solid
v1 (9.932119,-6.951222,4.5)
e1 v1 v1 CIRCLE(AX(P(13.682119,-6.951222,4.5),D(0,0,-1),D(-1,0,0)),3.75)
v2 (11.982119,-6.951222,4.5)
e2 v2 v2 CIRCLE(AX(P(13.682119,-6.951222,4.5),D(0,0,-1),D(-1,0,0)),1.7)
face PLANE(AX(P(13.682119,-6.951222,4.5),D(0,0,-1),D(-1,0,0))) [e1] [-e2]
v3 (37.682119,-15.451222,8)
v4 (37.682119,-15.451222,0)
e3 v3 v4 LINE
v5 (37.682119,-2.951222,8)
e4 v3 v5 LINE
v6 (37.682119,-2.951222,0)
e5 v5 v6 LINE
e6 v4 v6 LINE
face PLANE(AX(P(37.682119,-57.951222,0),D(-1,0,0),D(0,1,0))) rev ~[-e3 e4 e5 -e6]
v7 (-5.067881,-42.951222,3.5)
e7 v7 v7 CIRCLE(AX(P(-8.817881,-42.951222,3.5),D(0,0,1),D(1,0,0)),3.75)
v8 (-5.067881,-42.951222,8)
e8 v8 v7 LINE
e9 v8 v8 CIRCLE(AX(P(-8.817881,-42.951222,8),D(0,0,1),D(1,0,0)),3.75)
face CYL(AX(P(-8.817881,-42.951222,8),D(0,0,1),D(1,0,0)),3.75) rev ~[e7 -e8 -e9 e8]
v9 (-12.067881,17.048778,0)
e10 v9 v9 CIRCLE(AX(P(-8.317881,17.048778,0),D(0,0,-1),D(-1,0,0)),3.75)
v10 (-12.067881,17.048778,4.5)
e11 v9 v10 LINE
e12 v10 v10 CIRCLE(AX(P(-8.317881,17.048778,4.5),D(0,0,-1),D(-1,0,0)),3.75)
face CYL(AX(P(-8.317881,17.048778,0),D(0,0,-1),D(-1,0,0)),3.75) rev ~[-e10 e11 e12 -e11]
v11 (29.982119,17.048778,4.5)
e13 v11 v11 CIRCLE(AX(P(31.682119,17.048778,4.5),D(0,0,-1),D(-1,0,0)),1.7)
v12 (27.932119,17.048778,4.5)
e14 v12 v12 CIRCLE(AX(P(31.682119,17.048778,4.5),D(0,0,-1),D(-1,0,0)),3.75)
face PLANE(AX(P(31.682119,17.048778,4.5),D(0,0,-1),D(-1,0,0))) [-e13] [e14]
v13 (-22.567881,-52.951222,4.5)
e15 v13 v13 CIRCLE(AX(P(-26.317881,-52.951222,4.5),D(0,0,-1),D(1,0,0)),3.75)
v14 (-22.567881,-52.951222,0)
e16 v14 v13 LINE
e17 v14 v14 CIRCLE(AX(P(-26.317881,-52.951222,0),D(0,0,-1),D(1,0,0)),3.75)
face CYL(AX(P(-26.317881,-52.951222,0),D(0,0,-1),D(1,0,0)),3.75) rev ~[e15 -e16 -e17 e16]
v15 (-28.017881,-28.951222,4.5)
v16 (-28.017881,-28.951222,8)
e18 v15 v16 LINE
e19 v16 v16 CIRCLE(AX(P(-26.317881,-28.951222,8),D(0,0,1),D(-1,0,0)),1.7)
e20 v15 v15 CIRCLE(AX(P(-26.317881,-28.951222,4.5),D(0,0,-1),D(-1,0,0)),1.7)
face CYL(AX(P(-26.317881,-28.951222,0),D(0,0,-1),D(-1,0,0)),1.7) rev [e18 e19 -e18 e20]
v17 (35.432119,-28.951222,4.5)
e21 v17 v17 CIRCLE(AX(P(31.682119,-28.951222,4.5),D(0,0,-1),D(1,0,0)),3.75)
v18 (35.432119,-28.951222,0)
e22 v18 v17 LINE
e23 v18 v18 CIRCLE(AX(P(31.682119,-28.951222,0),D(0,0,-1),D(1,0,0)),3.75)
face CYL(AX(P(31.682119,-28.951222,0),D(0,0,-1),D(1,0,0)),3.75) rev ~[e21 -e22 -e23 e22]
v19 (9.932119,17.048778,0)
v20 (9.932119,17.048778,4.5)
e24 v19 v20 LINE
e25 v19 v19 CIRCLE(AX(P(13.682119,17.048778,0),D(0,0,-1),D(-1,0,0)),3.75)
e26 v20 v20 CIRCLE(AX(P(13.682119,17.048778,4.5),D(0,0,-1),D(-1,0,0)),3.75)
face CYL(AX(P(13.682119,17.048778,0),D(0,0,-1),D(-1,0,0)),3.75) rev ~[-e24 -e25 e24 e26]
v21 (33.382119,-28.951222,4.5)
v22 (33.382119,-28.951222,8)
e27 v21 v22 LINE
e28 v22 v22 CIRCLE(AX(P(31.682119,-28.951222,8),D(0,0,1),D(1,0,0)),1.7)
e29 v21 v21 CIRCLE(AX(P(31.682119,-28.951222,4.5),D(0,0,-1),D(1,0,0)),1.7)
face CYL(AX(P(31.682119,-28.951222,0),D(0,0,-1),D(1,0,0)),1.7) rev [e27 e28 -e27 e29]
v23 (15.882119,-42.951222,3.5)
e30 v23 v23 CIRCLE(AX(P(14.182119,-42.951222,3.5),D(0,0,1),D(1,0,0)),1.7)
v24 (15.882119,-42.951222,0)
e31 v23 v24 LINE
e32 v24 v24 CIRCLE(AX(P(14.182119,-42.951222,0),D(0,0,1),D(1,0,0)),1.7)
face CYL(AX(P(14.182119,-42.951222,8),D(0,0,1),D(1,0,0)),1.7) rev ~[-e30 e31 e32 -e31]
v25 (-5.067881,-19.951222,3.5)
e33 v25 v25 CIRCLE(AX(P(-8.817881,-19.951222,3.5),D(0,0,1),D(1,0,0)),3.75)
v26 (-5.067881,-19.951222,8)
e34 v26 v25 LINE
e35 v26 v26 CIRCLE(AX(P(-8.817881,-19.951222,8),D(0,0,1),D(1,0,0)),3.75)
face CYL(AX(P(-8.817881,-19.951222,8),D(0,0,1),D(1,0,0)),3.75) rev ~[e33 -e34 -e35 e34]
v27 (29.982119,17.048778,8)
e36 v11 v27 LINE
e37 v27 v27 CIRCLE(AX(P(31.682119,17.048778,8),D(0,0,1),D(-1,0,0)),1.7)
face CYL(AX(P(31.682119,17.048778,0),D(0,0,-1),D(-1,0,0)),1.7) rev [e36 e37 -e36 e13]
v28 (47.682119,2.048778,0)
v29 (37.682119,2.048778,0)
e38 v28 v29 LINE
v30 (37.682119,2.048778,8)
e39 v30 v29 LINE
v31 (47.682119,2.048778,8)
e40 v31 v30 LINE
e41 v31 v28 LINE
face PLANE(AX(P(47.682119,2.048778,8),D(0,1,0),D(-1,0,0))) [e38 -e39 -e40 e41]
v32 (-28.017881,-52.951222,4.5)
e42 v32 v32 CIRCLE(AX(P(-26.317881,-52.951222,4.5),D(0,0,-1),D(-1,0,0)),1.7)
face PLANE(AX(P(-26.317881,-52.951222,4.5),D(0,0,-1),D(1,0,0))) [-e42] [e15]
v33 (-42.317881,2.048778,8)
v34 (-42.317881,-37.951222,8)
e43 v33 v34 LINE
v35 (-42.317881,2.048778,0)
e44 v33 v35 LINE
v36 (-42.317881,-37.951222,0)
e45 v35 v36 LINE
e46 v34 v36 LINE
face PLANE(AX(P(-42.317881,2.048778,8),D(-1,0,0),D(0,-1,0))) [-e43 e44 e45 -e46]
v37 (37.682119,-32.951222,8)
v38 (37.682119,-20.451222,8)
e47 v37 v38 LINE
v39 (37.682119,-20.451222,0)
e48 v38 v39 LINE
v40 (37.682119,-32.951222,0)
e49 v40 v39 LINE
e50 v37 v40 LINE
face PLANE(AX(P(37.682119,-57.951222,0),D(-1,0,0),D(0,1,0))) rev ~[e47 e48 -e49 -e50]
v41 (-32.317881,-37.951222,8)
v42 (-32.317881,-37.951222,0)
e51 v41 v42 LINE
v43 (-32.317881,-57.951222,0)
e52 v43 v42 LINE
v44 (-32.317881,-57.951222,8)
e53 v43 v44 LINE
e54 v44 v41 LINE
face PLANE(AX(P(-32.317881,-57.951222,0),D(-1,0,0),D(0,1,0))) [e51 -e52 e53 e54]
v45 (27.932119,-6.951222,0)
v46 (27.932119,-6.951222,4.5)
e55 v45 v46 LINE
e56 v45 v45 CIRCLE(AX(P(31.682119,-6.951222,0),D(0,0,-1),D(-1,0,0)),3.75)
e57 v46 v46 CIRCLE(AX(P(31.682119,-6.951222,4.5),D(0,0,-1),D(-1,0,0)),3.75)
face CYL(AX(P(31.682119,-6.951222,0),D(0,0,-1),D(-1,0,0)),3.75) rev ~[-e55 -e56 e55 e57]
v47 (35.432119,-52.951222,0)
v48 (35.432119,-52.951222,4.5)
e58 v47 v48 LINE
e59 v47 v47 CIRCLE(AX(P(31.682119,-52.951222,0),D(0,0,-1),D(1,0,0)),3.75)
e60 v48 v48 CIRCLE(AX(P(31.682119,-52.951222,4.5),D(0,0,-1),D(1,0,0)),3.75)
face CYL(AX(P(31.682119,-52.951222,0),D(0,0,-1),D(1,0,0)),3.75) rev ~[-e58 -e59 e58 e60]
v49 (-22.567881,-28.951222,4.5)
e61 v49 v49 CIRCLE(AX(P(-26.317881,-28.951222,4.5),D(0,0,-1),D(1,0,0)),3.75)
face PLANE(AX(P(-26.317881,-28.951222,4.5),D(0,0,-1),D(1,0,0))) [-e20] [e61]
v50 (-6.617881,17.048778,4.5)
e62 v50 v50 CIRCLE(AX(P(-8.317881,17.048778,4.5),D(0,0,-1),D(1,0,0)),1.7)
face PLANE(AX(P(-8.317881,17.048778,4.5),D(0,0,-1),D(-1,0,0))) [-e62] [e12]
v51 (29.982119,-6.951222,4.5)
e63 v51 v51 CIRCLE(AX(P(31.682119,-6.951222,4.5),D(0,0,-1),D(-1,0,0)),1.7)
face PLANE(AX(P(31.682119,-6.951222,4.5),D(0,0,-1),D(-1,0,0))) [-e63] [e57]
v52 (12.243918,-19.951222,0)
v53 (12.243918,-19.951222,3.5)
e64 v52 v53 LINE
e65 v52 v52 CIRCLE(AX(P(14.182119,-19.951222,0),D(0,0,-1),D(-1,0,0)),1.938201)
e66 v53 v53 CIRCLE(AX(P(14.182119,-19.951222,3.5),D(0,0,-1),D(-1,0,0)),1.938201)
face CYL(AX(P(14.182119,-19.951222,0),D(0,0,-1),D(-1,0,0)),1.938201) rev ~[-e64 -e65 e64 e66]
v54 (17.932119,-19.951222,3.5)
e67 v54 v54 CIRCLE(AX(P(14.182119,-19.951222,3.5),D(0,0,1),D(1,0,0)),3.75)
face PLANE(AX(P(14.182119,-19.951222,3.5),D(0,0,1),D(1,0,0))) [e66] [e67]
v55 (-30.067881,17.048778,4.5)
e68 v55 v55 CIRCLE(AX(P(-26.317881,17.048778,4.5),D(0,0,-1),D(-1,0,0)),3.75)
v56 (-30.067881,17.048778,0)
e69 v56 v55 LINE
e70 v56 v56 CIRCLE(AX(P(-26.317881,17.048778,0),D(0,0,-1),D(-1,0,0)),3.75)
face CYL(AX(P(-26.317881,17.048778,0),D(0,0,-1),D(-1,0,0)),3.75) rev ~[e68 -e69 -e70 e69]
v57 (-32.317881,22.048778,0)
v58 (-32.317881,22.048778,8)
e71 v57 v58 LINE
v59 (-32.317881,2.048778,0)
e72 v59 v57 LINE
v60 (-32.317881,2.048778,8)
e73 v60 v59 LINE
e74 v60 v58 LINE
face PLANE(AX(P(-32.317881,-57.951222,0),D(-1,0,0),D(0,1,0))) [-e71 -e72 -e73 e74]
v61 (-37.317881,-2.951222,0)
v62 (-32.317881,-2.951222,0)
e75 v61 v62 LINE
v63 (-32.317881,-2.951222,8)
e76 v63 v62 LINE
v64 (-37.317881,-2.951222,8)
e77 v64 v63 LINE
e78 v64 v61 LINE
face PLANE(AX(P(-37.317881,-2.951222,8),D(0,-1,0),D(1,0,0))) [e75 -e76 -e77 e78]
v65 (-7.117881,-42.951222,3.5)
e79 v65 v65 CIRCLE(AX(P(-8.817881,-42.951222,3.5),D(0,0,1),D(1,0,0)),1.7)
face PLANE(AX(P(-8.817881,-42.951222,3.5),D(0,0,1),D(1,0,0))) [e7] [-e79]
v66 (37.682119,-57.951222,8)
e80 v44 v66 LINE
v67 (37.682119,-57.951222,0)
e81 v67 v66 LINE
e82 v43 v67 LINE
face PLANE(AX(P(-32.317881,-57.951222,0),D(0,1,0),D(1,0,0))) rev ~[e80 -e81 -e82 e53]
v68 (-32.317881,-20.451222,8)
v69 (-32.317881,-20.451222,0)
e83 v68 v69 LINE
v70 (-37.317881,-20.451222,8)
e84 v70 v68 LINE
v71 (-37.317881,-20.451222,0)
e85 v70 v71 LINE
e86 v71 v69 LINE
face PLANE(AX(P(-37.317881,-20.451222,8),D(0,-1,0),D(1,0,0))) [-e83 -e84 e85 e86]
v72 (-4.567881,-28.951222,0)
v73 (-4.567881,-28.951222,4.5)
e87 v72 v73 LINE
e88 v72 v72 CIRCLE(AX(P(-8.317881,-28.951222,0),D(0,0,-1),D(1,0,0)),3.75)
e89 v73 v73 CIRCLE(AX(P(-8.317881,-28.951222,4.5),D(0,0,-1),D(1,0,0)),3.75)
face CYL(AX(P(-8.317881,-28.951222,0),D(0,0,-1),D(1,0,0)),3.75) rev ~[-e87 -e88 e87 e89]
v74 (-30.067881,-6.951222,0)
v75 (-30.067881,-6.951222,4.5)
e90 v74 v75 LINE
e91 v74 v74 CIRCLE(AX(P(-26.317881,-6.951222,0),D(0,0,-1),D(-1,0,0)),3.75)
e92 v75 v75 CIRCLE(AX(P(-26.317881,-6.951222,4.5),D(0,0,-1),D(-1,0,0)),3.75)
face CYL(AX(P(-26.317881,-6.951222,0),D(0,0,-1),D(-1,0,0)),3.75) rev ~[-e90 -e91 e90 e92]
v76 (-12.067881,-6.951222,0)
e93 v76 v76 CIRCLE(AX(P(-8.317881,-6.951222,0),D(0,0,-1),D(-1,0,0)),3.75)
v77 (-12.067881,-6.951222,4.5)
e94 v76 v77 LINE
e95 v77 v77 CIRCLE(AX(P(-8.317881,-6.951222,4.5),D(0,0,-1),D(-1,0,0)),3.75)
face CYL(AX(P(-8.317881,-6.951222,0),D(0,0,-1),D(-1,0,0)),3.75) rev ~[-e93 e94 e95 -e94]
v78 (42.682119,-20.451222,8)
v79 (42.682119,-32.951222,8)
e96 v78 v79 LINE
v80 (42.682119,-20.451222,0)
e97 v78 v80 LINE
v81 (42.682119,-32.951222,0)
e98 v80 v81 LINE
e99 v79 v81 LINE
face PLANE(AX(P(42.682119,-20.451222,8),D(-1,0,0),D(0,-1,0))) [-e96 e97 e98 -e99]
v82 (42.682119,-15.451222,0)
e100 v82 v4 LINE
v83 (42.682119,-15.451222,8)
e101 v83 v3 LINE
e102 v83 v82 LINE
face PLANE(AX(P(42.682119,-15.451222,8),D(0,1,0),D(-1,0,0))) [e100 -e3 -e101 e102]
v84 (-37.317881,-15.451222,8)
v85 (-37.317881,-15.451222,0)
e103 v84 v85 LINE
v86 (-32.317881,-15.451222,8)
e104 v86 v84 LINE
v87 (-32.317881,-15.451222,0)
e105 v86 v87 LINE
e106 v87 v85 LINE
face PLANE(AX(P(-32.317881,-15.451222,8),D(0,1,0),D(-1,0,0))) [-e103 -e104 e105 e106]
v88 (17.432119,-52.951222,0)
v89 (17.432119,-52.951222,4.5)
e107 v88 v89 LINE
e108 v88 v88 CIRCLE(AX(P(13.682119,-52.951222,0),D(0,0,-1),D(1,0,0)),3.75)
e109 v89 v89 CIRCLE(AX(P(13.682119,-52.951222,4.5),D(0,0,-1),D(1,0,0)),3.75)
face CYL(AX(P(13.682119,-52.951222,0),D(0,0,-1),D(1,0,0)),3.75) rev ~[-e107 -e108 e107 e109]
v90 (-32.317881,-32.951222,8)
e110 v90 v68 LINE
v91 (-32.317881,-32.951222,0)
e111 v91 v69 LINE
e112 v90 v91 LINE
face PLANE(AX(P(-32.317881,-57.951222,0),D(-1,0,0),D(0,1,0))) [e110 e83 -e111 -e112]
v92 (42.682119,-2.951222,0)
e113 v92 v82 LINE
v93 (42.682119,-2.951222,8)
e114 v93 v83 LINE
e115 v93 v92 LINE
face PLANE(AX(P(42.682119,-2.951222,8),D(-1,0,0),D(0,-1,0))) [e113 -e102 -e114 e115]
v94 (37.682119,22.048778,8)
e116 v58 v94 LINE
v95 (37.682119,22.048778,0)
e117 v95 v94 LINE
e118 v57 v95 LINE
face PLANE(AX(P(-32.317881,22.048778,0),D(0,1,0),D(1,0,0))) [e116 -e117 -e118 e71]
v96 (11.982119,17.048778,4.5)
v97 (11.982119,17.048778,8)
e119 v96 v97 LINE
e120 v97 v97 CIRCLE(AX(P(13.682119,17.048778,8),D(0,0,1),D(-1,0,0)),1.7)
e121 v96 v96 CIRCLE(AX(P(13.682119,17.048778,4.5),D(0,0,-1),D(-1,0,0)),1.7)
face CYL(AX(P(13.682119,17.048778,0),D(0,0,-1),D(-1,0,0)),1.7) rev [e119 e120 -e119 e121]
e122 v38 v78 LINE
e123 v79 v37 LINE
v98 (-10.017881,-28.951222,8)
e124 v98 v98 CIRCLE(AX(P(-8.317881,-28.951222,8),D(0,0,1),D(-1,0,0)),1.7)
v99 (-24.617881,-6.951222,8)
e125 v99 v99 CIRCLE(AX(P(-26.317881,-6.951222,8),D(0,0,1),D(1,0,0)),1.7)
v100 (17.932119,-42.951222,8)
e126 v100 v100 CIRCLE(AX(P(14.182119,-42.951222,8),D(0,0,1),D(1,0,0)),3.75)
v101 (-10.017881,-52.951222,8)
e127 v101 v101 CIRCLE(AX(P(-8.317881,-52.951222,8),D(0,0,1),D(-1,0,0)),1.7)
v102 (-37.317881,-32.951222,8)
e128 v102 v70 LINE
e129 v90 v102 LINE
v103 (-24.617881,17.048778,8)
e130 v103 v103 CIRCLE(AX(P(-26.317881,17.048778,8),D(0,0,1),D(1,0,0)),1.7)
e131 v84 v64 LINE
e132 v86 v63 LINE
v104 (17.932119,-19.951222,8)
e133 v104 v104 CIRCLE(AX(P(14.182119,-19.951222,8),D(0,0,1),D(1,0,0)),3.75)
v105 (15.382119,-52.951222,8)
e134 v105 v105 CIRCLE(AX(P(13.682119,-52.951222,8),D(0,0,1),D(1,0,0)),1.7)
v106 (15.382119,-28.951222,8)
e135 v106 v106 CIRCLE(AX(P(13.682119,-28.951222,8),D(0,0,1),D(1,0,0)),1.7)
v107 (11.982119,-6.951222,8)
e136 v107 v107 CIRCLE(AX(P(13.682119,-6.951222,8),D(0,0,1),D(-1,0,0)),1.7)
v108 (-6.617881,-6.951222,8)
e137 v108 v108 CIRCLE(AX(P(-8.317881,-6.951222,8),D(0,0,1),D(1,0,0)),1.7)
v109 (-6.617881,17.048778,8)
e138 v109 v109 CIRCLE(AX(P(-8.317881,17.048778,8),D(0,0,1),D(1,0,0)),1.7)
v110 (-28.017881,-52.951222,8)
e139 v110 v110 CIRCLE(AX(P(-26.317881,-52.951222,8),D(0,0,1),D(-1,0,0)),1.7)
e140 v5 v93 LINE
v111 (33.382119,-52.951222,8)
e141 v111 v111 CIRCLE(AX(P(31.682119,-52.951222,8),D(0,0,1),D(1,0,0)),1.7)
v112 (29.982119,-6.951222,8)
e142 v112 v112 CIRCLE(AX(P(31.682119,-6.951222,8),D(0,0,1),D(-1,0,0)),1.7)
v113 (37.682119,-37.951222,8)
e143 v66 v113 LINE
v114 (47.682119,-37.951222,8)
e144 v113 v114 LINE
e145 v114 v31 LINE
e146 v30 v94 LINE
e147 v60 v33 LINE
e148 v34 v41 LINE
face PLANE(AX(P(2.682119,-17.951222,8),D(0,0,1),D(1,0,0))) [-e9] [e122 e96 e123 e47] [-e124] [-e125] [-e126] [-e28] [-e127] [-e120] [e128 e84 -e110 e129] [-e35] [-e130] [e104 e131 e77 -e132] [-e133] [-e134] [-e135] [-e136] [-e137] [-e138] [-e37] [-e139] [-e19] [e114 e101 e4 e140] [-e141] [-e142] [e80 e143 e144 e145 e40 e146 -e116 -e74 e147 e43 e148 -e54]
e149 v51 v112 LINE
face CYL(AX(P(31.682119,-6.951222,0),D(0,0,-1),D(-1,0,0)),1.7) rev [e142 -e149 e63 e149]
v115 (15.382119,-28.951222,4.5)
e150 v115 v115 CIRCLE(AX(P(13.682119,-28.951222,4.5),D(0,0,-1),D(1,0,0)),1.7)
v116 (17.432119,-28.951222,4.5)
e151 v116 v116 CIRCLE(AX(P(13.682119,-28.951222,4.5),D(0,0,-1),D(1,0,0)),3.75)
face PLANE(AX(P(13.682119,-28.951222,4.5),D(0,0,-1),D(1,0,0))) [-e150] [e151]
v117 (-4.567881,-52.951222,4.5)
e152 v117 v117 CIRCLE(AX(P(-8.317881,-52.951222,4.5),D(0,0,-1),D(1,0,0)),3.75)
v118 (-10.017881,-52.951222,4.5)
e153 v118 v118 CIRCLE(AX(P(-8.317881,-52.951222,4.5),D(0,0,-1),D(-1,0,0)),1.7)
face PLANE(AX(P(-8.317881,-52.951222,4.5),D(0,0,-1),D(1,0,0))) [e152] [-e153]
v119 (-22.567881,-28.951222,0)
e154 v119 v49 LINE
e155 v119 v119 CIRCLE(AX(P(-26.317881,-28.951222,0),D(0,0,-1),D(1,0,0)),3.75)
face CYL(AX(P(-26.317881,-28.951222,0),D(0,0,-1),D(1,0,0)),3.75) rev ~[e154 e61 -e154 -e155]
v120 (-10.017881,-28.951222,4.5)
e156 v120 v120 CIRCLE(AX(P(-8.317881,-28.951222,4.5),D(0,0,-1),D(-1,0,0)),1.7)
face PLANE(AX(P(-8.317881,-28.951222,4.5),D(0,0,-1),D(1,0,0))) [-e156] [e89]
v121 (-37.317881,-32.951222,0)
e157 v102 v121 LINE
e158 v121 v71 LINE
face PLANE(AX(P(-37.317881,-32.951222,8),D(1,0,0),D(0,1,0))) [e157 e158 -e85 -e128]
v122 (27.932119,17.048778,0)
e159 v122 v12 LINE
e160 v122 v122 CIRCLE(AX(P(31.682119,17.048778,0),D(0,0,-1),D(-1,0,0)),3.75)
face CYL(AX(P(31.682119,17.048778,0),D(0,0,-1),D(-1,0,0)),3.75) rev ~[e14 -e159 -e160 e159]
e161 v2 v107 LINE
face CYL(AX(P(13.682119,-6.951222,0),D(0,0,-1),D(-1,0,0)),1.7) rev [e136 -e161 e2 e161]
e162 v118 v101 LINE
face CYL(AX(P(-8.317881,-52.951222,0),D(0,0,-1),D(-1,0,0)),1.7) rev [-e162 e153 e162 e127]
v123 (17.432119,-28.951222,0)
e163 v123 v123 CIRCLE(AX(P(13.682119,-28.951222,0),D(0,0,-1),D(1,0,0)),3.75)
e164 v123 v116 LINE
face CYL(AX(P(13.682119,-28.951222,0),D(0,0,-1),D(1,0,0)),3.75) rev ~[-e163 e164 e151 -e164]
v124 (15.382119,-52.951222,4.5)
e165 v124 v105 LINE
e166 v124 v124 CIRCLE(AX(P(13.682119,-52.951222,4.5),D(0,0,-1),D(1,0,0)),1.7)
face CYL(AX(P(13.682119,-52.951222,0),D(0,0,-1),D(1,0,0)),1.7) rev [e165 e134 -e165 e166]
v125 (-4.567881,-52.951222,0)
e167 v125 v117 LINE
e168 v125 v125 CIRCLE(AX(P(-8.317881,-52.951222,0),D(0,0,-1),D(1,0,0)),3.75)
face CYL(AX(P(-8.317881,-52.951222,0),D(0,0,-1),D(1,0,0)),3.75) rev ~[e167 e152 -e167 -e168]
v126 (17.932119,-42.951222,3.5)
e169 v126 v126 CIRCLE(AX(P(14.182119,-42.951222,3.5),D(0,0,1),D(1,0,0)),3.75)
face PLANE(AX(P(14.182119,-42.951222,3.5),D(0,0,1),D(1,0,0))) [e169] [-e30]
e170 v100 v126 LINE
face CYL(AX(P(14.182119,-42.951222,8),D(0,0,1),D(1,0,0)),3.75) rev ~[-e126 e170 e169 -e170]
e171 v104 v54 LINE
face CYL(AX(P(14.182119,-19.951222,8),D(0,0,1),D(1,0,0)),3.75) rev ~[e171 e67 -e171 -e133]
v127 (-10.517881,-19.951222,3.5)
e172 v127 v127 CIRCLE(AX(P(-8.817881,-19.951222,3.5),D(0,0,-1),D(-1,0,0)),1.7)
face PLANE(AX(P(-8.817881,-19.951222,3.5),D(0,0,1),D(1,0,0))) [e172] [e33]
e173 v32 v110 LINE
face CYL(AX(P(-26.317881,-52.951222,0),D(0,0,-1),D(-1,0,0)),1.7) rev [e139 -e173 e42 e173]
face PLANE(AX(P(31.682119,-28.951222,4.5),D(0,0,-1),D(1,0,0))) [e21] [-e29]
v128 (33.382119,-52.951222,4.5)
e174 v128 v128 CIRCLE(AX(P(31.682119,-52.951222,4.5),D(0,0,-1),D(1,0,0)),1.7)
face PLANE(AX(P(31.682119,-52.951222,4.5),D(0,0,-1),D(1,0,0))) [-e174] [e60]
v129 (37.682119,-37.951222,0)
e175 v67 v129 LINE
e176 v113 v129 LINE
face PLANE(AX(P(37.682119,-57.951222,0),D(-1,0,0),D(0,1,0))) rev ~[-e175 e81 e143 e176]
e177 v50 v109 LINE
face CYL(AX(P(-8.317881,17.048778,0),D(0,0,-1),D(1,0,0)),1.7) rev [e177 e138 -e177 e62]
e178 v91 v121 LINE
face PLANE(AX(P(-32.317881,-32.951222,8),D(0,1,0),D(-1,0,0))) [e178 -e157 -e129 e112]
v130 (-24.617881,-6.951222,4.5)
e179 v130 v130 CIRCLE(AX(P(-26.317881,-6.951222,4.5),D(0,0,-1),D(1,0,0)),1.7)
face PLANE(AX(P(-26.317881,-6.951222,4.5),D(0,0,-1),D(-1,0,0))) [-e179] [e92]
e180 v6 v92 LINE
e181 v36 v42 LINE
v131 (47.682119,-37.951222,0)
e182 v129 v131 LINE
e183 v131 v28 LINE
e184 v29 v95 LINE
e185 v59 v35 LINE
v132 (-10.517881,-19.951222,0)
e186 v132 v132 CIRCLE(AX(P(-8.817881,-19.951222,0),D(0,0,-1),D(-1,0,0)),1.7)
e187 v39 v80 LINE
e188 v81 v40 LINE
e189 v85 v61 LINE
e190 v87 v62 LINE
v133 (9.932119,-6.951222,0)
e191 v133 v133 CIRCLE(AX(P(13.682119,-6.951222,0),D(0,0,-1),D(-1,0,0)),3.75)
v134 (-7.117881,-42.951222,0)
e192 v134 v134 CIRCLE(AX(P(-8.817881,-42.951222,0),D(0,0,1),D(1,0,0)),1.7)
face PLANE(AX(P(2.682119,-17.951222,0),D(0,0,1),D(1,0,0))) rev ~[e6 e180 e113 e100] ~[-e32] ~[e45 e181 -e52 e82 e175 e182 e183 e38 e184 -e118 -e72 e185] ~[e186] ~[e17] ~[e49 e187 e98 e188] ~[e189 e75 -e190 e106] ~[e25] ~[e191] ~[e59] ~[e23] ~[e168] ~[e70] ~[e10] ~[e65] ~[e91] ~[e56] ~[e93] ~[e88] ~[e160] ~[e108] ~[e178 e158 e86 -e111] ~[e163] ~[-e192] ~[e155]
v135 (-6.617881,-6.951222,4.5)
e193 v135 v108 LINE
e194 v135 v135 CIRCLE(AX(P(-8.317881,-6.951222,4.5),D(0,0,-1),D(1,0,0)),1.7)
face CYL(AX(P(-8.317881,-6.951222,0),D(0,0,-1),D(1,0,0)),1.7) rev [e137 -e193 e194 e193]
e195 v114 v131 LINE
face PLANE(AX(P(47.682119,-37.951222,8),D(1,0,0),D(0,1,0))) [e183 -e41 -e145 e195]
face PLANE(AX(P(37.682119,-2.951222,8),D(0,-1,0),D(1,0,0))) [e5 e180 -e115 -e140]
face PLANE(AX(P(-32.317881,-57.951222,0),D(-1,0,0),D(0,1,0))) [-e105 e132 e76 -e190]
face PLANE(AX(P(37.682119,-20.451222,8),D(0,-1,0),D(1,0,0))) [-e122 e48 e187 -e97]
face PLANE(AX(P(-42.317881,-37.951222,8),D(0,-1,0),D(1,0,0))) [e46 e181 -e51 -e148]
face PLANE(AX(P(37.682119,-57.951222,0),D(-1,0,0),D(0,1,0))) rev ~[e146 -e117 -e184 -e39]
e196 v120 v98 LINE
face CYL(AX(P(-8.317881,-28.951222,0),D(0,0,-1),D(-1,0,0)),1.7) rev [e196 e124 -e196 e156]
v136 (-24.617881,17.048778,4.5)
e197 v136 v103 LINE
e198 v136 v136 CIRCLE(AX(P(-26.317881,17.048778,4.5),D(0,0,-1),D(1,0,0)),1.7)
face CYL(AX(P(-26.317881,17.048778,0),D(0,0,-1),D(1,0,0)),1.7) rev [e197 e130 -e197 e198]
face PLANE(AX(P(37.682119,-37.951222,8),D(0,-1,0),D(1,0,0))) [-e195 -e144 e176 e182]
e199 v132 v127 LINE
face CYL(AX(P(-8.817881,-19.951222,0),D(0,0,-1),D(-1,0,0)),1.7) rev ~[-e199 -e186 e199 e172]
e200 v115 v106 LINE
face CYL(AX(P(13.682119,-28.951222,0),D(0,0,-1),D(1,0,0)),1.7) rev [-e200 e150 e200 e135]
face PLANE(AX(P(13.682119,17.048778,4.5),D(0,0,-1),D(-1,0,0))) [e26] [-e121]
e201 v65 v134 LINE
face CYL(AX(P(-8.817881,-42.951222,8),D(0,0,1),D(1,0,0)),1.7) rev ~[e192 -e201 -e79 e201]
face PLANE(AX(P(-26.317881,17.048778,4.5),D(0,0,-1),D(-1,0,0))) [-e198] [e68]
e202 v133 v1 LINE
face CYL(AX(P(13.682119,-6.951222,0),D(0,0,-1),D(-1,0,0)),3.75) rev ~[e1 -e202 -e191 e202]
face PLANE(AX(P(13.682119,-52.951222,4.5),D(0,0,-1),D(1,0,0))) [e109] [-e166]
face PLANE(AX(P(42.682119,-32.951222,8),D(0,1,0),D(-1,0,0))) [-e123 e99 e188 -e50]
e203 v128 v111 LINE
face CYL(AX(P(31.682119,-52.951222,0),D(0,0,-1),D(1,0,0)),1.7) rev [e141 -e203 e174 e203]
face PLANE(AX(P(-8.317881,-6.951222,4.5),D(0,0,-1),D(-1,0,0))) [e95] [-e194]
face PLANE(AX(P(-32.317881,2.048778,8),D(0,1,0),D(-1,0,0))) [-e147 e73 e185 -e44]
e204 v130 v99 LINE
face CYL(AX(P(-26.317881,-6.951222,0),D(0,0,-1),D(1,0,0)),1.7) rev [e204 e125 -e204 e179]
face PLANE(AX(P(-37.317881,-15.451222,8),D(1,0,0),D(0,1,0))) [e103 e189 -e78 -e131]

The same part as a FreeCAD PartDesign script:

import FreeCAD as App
import Part
import Sketcher
from FreeCAD import Vector
Q = App.Units.Quantity

doc = App.newDocument("Part")
body = doc.addObject("PartDesign::Body", "Body")

sketch1 = body.newObject("Sketcher::SketchObject", "Sketch")
sketch1.AttachmentSupport = (doc.getObject("XY_Plane"), [""])
sketch1.MapMode = "FlatFace"
sketch1.addGeometry(Part.LineSegment(Vector(-32.3, 22, 0), Vector(-32.3, -58, 0)), False)
sketch1.addGeometry(Part.LineSegment(Vector(-32.3, -58, 0), Vector(37.7, -58, 0)), False)
sketch1.addGeometry(Part.LineSegment(Vector(37.7, -58, 0), Vector(37.7, 22, 0)), False)
sketch1.addGeometry(Part.LineSegment(Vector(37.7, 22, 0), Vector(-32.3, 22, 0)), False)
sketch1.addGeometry(Part.Circle(Vector(-26.3, -53, 0), Vector(0, 0, 1), 1.7), False)
sketch1.addGeometry(Part.Circle(Vector(-8.3, -53, 0), Vector(0, 0, 1), 1.7), False)
sketch1.addGeometry(Part.Circle(Vector(-26.3, -29, 0), Vector(0, 0, 1), 1.7), False)
sketch1.addGeometry(Part.Circle(Vector(-8.3, -29, 0), Vector(0, 0, 1), 1.7), False)
sketch1.addGeometry(Part.Circle(Vector(13.7, -53, 0), Vector(0, 0, 1), 1.7), False)
sketch1.addGeometry(Part.Circle(Vector(31.7, -53, 0), Vector(0, 0, 1), 1.7), False)
sketch1.addGeometry(Part.Circle(Vector(13.7, -29, 0), Vector(0, 0, 1), 1.7), False)
sketch1.addGeometry(Part.Circle(Vector(31.7, -29, 0), Vector(0, 0, 1), 1.7), False)
sketch1.addGeometry(Part.Circle(Vector(-26.3, -7, 0), Vector(0, 0, 1), 1.7), False)
sketch1.addGeometry(Part.Circle(Vector(-8.3, -7, 0), Vector(0, 0, 1), 1.7), False)
sketch1.addGeometry(Part.Circle(Vector(-26.3, 17, 0), Vector(0, 0, 1), 1.7), False)
sketch1.addGeometry(Part.Circle(Vector(-8.3, 17, 0), Vector(0, 0, 1), 1.7), False)
sketch1.addGeometry(Part.Circle(Vector(13.7, -7, 0), Vector(0, 0, 1), 1.7), False)
sketch1.addGeometry(Part.Circle(Vector(31.7, -7, 0), Vector(0, 0, 1), 1.7), False)
sketch1.addGeometry(Part.Circle(Vector(13.7, 17, 0), Vector(0, 0, 1), 1.7), False)
sketch1.addGeometry(Part.Circle(Vector(31.7, 17, 0), Vector(0, 0, 1), 1.7), False)
sketch1.addConstraint(Sketcher.Constraint("Coincident", 0, 2, 1, 1))
sketch1.addConstraint(Sketcher.Constraint("Coincident", 1, 2, 2, 1))
sketch1.addConstraint(Sketcher.Constraint("Coincident", 2, 2, 3, 1))
sketch1.addConstraint(Sketcher.Constraint("Coincident", 3, 2, 0, 1))
sketch1.addConstraint(Sketcher.Constraint("Vertical", 0))
sketch1.addConstraint(Sketcher.Constraint("Horizontal", 1))
sketch1.addConstraint(Sketcher.Constraint("Vertical", 2))
sketch1.addConstraint(Sketcher.Constraint("Horizontal", 3))
sketch1.addConstraint(Sketcher.Constraint("Equal", 4, 5))
sketch1.addConstraint(Sketcher.Constraint("Equal", 5, 6))
sketch1.addConstraint(Sketcher.Constraint("Equal", 6, 7))
sketch1.addConstraint(Sketcher.Constraint("Equal", 7, 8))
sketch1.addConstraint(Sketcher.Constraint("Equal", 8, 9))
sketch1.addConstraint(Sketcher.Constraint("Equal", 9, 10))
sketch1.addConstraint(Sketcher.Constraint("Equal", 10, 11))
sketch1.addConstraint(Sketcher.Constraint("Equal", 11, 12))
sketch1.addConstraint(Sketcher.Constraint("Equal", 12, 13))
sketch1.addConstraint(Sketcher.Constraint("Equal", 13, 14))
sketch1.addConstraint(Sketcher.Constraint("Equal", 14, 15))
sketch1.addConstraint(Sketcher.Constraint("Equal", 15, 16))
sketch1.addConstraint(Sketcher.Constraint("Equal", 16, 17))
sketch1.addConstraint(Sketcher.Constraint("Equal", 17, 18))
sketch1.addConstraint(Sketcher.Constraint("Equal", 18, 19))
sketch1.addConstraint(Sketcher.Constraint("Horizontal", 4, 3, 5, 3))
sketch1.addConstraint(Sketcher.Constraint("Horizontal", 6, 3, 7, 3))
sketch1.addConstraint(Sketcher.Constraint("Horizontal", 5, 3, 8, 3))
sketch1.addConstraint(Sketcher.Constraint("Horizontal", 8, 3, 9, 3))
sketch1.addConstraint(Sketcher.Constraint("Horizontal", 7, 3, 10, 3))
sketch1.addConstraint(Sketcher.Constraint("Horizontal", 10, 3, 11, 3))
sketch1.addConstraint(Sketcher.Constraint("Horizontal", 12, 3, 13, 3))
sketch1.addConstraint(Sketcher.Constraint("Horizontal", 14, 3, 15, 3))
sketch1.addConstraint(Sketcher.Constraint("Horizontal", 13, 3, 16, 3))
sketch1.addConstraint(Sketcher.Constraint("Horizontal", 16, 3, 17, 3))
sketch1.addConstraint(Sketcher.Constraint("Horizontal", 15, 3, 18, 3))
sketch1.addConstraint(Sketcher.Constraint("Horizontal", 18, 3, 19, 3))
sketch1.addConstraint(Sketcher.Constraint("Vertical", 4, 3, 6, 3))
sketch1.addConstraint(Sketcher.Constraint("Vertical", 5, 3, 7, 3))
sketch1.addConstraint(Sketcher.Constraint("Vertical", 8, 3, 10, 3))
sketch1.addConstraint(Sketcher.Constraint("Vertical", 9, 3, 11, 3))
sketch1.addConstraint(Sketcher.Constraint("Vertical", 6, 3, 12, 3))
sketch1.addConstraint(Sketcher.Constraint("Vertical", 7, 3, 13, 3))
sketch1.addConstraint(Sketcher.Constraint("Vertical", 12, 3, 14, 3))
sketch1.addConstraint(Sketcher.Constraint("Vertical", 13, 3, 15, 3))
sketch1.addConstraint(Sketcher.Constraint("Vertical", 10, 3, 16, 3))
sketch1.addConstraint(Sketcher.Constraint("Vertical", 11, 3, 17, 3))
sketch1.addConstraint(Sketcher.Constraint("Vertical", 16, 3, 18, 3))
sketch1.addConstraint(Sketcher.Constraint("Vertical", 17, 3, 19, 3))
sketch1.addConstraint(Sketcher.Constraint("Diameter", 4, Q("3.4 mm")))
sketch1.addConstraint(Sketcher.Constraint("DistanceX", 1, 1, 1, 2, Q("70 mm")))
sketch1.addConstraint(Sketcher.Constraint("DistanceY", 0, 2, 0, 1, Q("80 mm")))
sketch1.addConstraint(Sketcher.Constraint("DistanceX", 4, 3, 5, 3, Q("18 mm")))
sketch1.addConstraint(Sketcher.Constraint("DistanceY", 4, 3, 6, 3, Q("24 mm")))
sketch1.addConstraint(Sketcher.Constraint("DistanceX", 5, 3, 8, 3, Q("22 mm")))
sketch1.addConstraint(Sketcher.Constraint("DistanceX", 8, 3, 9, 3, Q("18 mm")))
sketch1.addConstraint(Sketcher.Constraint("DistanceY", 6, 3, 12, 3, Q("22 mm")))
sketch1.addConstraint(Sketcher.Constraint("DistanceY", 12, 3, 14, 3, Q("24 mm")))
sketch1.addConstraint(Sketcher.Constraint("DistanceX", 0, 2, 4, 3, Q("6 mm")))
sketch1.addConstraint(Sketcher.Constraint("DistanceY", 0, 2, 4, 3, Q("5 mm")))
sketch1.addConstraint(Sketcher.Constraint("DistanceX", 4, 3, -1, 1, Q("26.317881 mm")))
sketch1.addConstraint(Sketcher.Constraint("DistanceY", 4, 3, -1, 1, Q("52.951222 mm")))
pad1 = body.newObject("PartDesign::Pad", "Pad")
pad1.Profile = sketch1
pad1.Length = 8

sketch2 = body.newObject("Sketcher::SketchObject", "Sketch001")
sketch2.AttachmentSupport = (doc.getObject("XY_Plane"), [""])
sketch2.MapMode = "FlatFace"
sketch2.addGeometry(Part.Circle(Vector(31.7, 17, 0), Vector(0, 0, 1), 3.8), False)
sketch2.addGeometry(Part.Circle(Vector(13.7, 17, 0), Vector(0, 0, 1), 3.8), False)
sketch2.addGeometry(Part.Circle(Vector(-8.3, 17, 0), Vector(0, 0, 1), 3.8), False)
sketch2.addGeometry(Part.Circle(Vector(-26.3, 17, 0), Vector(0, 0, 1), 3.8), False)
sketch2.addGeometry(Part.Circle(Vector(31.7, -7, 0), Vector(0, 0, 1), 3.8), False)
sketch2.addGeometry(Part.Circle(Vector(13.7, -7, 0), Vector(0, 0, 1), 3.8), False)
sketch2.addGeometry(Part.Circle(Vector(-8.3, -7, 0), Vector(0, 0, 1), 3.8), False)
sketch2.addGeometry(Part.Circle(Vector(-26.3, -7, 0), Vector(0, 0, 1), 3.8), False)
sketch2.addGeometry(Part.Circle(Vector(31.7, -29, 0), Vector(0, 0, 1), 3.8), False)
sketch2.addGeometry(Part.Circle(Vector(13.7, -29, 0), Vector(0, 0, 1), 3.8), False)
sketch2.addGeometry(Part.Circle(Vector(-8.3, -29, 0), Vector(0, 0, 1), 3.8), False)
sketch2.addGeometry(Part.Circle(Vector(-26.3, -29, 0), Vector(0, 0, 1), 3.8), False)
sketch2.addGeometry(Part.Circle(Vector(-26.3, -53, 0), Vector(0, 0, 1), 3.8), False)
sketch2.addGeometry(Part.Circle(Vector(-8.3, -53, 0), Vector(0, 0, 1), 3.8), False)
sketch2.addGeometry(Part.Circle(Vector(13.7, -53, 0), Vector(0, 0, 1), 3.8), False)
sketch2.addGeometry(Part.Circle(Vector(31.7, -53, 0), Vector(0, 0, 1), 3.8), False)
sketch2.addConstraint(Sketcher.Constraint("Equal", 0, 1))
sketch2.addConstraint(Sketcher.Constraint("Equal", 1, 2))
sketch2.addConstraint(Sketcher.Constraint("Equal", 2, 3))
sketch2.addConstraint(Sketcher.Constraint("Equal", 3, 4))
sketch2.addConstraint(Sketcher.Constraint("Equal", 4, 5))
sketch2.addConstraint(Sketcher.Constraint("Equal", 5, 6))
sketch2.addConstraint(Sketcher.Constraint("Equal", 6, 7))
sketch2.addConstraint(Sketcher.Constraint("Equal", 7, 8))
sketch2.addConstraint(Sketcher.Constraint("Equal", 8, 9))
sketch2.addConstraint(Sketcher.Constraint("Equal", 9, 10))
sketch2.addConstraint(Sketcher.Constraint("Equal", 10, 11))
sketch2.addConstraint(Sketcher.Constraint("Equal", 11, 12))
sketch2.addConstraint(Sketcher.Constraint("Equal", 12, 13))
sketch2.addConstraint(Sketcher.Constraint("Equal", 13, 14))
sketch2.addConstraint(Sketcher.Constraint("Equal", 14, 15))
sketch2.addConstraint(Sketcher.Constraint("Horizontal", 0, 3, 1, 3))
sketch2.addConstraint(Sketcher.Constraint("Horizontal", 1, 3, 2, 3))
sketch2.addConstraint(Sketcher.Constraint("Horizontal", 2, 3, 3, 3))
sketch2.addConstraint(Sketcher.Constraint("Horizontal", 4, 3, 5, 3))
sketch2.addConstraint(Sketcher.Constraint("Horizontal", 5, 3, 6, 3))
sketch2.addConstraint(Sketcher.Constraint("Horizontal", 6, 3, 7, 3))
sketch2.addConstraint(Sketcher.Constraint("Horizontal", 8, 3, 9, 3))
sketch2.addConstraint(Sketcher.Constraint("Horizontal", 9, 3, 10, 3))
sketch2.addConstraint(Sketcher.Constraint("Horizontal", 10, 3, 11, 3))
sketch2.addConstraint(Sketcher.Constraint("Horizontal", 12, 3, 13, 3))
sketch2.addConstraint(Sketcher.Constraint("Horizontal", 13, 3, 14, 3))
sketch2.addConstraint(Sketcher.Constraint("Horizontal", 14, 3, 15, 3))
sketch2.addConstraint(Sketcher.Constraint("Vertical", 0, 3, 4, 3))
sketch2.addConstraint(Sketcher.Constraint("Vertical", 1, 3, 5, 3))
sketch2.addConstraint(Sketcher.Constraint("Vertical", 2, 3, 6, 3))
sketch2.addConstraint(Sketcher.Constraint("Vertical", 3, 3, 7, 3))
sketch2.addConstraint(Sketcher.Constraint("Vertical", 4, 3, 8, 3))
sketch2.addConstraint(Sketcher.Constraint("Vertical", 5, 3, 9, 3))
sketch2.addConstraint(Sketcher.Constraint("Vertical", 6, 3, 10, 3))
sketch2.addConstraint(Sketcher.Constraint("Vertical", 7, 3, 11, 3))
sketch2.addConstraint(Sketcher.Constraint("Vertical", 11, 3, 12, 3))
sketch2.addConstraint(Sketcher.Constraint("Vertical", 10, 3, 13, 3))
sketch2.addConstraint(Sketcher.Constraint("Vertical", 9, 3, 14, 3))
sketch2.addConstraint(Sketcher.Constraint("Vertical", 8, 3, 15, 3))
sketch2.addConstraint(Sketcher.Constraint("Diameter", 0, Q("7.5 mm")))
sketch2.addConstraint(Sketcher.Constraint("DistanceX", 1, 3, 0, 3, Q("18 mm")))
sketch2.addConstraint(Sketcher.Constraint("DistanceX", 2, 3, 1, 3, Q("22 mm")))
sketch2.addConstraint(Sketcher.Constraint("DistanceX", 3, 3, 2, 3, Q("18 mm")))
sketch2.addConstraint(Sketcher.Constraint("DistanceY", 4, 3, 0, 3, Q("24 mm")))
sketch2.addConstraint(Sketcher.Constraint("DistanceY", 8, 3, 4, 3, Q("22 mm")))
sketch2.addConstraint(Sketcher.Constraint("DistanceY", 12, 3, 11, 3, Q("24 mm")))
sketch2.addConstraint(Sketcher.Constraint("DistanceX", -1, 1, 0, 3, Q("31.682119 mm")))
sketch2.addConstraint(Sketcher.Constraint("DistanceY", -1, 1, 0, 3, Q("17.048778 mm")))
pocket1 = body.newObject("PartDesign::Pocket", "Pocket")
pocket1.Profile = sketch2
pocket1.Length = 4.5
pocket1.Reversed = True

sketch3 = body.newObject("Sketcher::SketchObject", "Sketch002")
sketch3.AttachmentSupport = (doc.getObject("XY_Plane"), [""])
sketch3.MapMode = "FlatFace"
sketch3.AttachmentOffset = App.Placement(Vector(0, 0, 8), App.Rotation())
sketch3.addGeometry(Part.LineSegment(Vector(48, 2, 0), Vector(38, 2, 0)), False)
sketch3.addGeometry(Part.LineSegment(Vector(38, 2, 0), Vector(38, -3, 0)), False)
sketch3.addGeometry(Part.LineSegment(Vector(38, -3, 0), Vector(43, -3, 0)), False)
sketch3.addGeometry(Part.LineSegment(Vector(43, -3, 0), Vector(43, -15, 0)), False)
sketch3.addGeometry(Part.LineSegment(Vector(43, -15, 0), Vector(38, -15, 0)), False)
sketch3.addGeometry(Part.LineSegment(Vector(38, -15, 0), Vector(38, -20, 0)), False)
sketch3.addGeometry(Part.LineSegment(Vector(38, -20, 0), Vector(43, -20, 0)), False)
sketch3.addGeometry(Part.LineSegment(Vector(43, -20, 0), Vector(43, -33, 0)), False)
sketch3.addGeometry(Part.LineSegment(Vector(43, -33, 0), Vector(38, -33, 0)), False)
sketch3.addGeometry(Part.LineSegment(Vector(38, -33, 0), Vector(38, -38, 0)), False)
sketch3.addGeometry(Part.LineSegment(Vector(38, -38, 0), Vector(48, -38, 0)), False)
sketch3.addGeometry(Part.LineSegment(Vector(48, -38, 0), Vector(48, 2, 0)), False)
sketch3.addGeometry(Part.LineSegment(Vector(-32, -38, 0), Vector(-32, -33, 0)), False)
sketch3.addGeometry(Part.LineSegment(Vector(-32, -33, 0), Vector(-37, -33, 0)), False)
sketch3.addGeometry(Part.LineSegment(Vector(-37, -33, 0), Vector(-37, -20, 0)), False)
sketch3.addGeometry(Part.LineSegment(Vector(-37, -20, 0), Vector(-32, -20, 0)), False)
sketch3.addGeometry(Part.LineSegment(Vector(-32, -20, 0), Vector(-32, -15, 0)), False)
sketch3.addGeometry(Part.LineSegment(Vector(-32, -15, 0), Vector(-37, -15, 0)), False)
sketch3.addGeometry(Part.LineSegment(Vector(-37, -15, 0), Vector(-37, -3, 0)), False)
sketch3.addGeometry(Part.LineSegment(Vector(-37, -3, 0), Vector(-32, -3, 0)), False)
sketch3.addGeometry(Part.LineSegment(Vector(-32, -3, 0), Vector(-32, 2, 0)), False)
sketch3.addGeometry(Part.LineSegment(Vector(-32, 2, 0), Vector(-42, 2, 0)), False)
sketch3.addGeometry(Part.LineSegment(Vector(-42, 2, 0), Vector(-42, -38, 0)), False)
sketch3.addGeometry(Part.LineSegment(Vector(-42, -38, 0), Vector(-32, -38, 0)), False)
sketch3.addConstraint(Sketcher.Constraint("Coincident", 0, 2, 1, 1))
sketch3.addConstraint(Sketcher.Constraint("Coincident", 1, 2, 2, 1))
sketch3.addConstraint(Sketcher.Constraint("Coincident", 2, 2, 3, 1))
sketch3.addConstraint(Sketcher.Constraint("Coincident", 3, 2, 4, 1))
sketch3.addConstraint(Sketcher.Constraint("Coincident", 4, 2, 5, 1))
sketch3.addConstraint(Sketcher.Constraint("Coincident", 5, 2, 6, 1))
sketch3.addConstraint(Sketcher.Constraint("Coincident", 6, 2, 7, 1))
sketch3.addConstraint(Sketcher.Constraint("Coincident", 7, 2, 8, 1))
sketch3.addConstraint(Sketcher.Constraint("Coincident", 8, 2, 9, 1))
sketch3.addConstraint(Sketcher.Constraint("Coincident", 9, 2, 10, 1))
sketch3.addConstraint(Sketcher.Constraint("Coincident", 10, 2, 11, 1))
sketch3.addConstraint(Sketcher.Constraint("Coincident", 11, 2, 0, 1))
sketch3.addConstraint(Sketcher.Constraint("Coincident", 12, 2, 13, 1))
sketch3.addConstraint(Sketcher.Constraint("Coincident", 13, 2, 14, 1))
sketch3.addConstraint(Sketcher.Constraint("Coincident", 14, 2, 15, 1))
sketch3.addConstraint(Sketcher.Constraint("Coincident", 15, 2, 16, 1))
sketch3.addConstraint(Sketcher.Constraint("Coincident", 16, 2, 17, 1))
sketch3.addConstraint(Sketcher.Constraint("Coincident", 17, 2, 18, 1))
sketch3.addConstraint(Sketcher.Constraint("Coincident", 18, 2, 19, 1))
sketch3.addConstraint(Sketcher.Constraint("Coincident", 19, 2, 20, 1))
sketch3.addConstraint(Sketcher.Constraint("Coincident", 20, 2, 21, 1))
sketch3.addConstraint(Sketcher.Constraint("Coincident", 21, 2, 22, 1))
sketch3.addConstraint(Sketcher.Constraint("Coincident", 22, 2, 23, 1))
sketch3.addConstraint(Sketcher.Constraint("Coincident", 23, 2, 12, 1))
sketch3.addConstraint(Sketcher.Constraint("Horizontal", 0))
sketch3.addConstraint(Sketcher.Constraint("Vertical", 1))
sketch3.addConstraint(Sketcher.Constraint("Horizontal", 2))
sketch3.addConstraint(Sketcher.Constraint("Vertical", 3))
sketch3.addConstraint(Sketcher.Constraint("Horizontal", 4))
sketch3.addConstraint(Sketcher.Constraint("Vertical", 5))
sketch3.addConstraint(Sketcher.Constraint("Horizontal", 6))
sketch3.addConstraint(Sketcher.Constraint("Vertical", 7))
sketch3.addConstraint(Sketcher.Constraint("Horizontal", 8))
sketch3.addConstraint(Sketcher.Constraint("Vertical", 9))
sketch3.addConstraint(Sketcher.Constraint("Horizontal", 10))
sketch3.addConstraint(Sketcher.Constraint("Vertical", 11))
sketch3.addConstraint(Sketcher.Constraint("Vertical", 12))
sketch3.addConstraint(Sketcher.Constraint("Horizontal", 13))
sketch3.addConstraint(Sketcher.Constraint("Vertical", 14))
sketch3.addConstraint(Sketcher.Constraint("Horizontal", 15))
sketch3.addConstraint(Sketcher.Constraint("Vertical", 16))
sketch3.addConstraint(Sketcher.Constraint("Horizontal", 17))
sketch3.addConstraint(Sketcher.Constraint("Vertical", 18))
sketch3.addConstraint(Sketcher.Constraint("Horizontal", 19))
sketch3.addConstraint(Sketcher.Constraint("Vertical", 20))
sketch3.addConstraint(Sketcher.Constraint("Horizontal", 21))
sketch3.addConstraint(Sketcher.Constraint("Vertical", 22))
sketch3.addConstraint(Sketcher.Constraint("Horizontal", 23))
sketch3.addConstraint(Sketcher.Constraint("Horizontal", 8, 2, 12, 2))
sketch3.addConstraint(Sketcher.Constraint("Horizontal", 6, 2, 14, 2))
sketch3.addConstraint(Sketcher.Constraint("Horizontal", 4, 2, 16, 2))
sketch3.addConstraint(Sketcher.Constraint("Horizontal", 2, 2, 18, 2))
sketch3.addConstraint(Sketcher.Constraint("Horizontal", 11, 2, 20, 2))
sketch3.addConstraint(Sketcher.Constraint("Horizontal", 10, 2, 22, 2))
sketch3.addConstraint(Sketcher.Constraint("Vertical", 1, 2, 4, 2))
sketch3.addConstraint(Sketcher.Constraint("Vertical", 3, 2, 6, 2))
sketch3.addConstraint(Sketcher.Constraint("Vertical", 5, 2, 8, 2))
sketch3.addConstraint(Sketcher.Constraint("Vertical", 12, 2, 15, 2))
sketch3.addConstraint(Sketcher.Constraint("Vertical", 14, 2, 17, 2))
sketch3.addConstraint(Sketcher.Constraint("Vertical", 16, 2, 19, 2))
sketch3.addConstraint(Sketcher.Constraint("Equal", 8, 13))
sketch3.addConstraint(Sketcher.Constraint("Equal", 10, 21))
sketch3.addConstraint(Sketcher.Constraint("Equal", 19, 1))
sketch3.addConstraint(Sketcher.Constraint("Equal", 1, 5))
sketch3.addConstraint(Sketcher.Constraint("Equal", 3, 7))
sketch3.addConstraint(Sketcher.Constraint("Equal", 5, 9))
sketch3.addConstraint(Sketcher.Constraint("DistanceX", 0, 2, 0, 1, Q("10 mm")))
sketch3.addConstraint(Sketcher.Constraint("DistanceX", 2, 1, 2, 2, Q("5 mm")))
sketch3.addConstraint(Sketcher.Constraint("DistanceY", 11, 1, 11, 2, Q("40 mm")))
sketch3.addConstraint(Sketcher.Constraint("DistanceX", 12, 2, 8, 2, Q("70 mm")))
sketch3.addConstraint(Sketcher.Constraint("DistanceX", -1, 1, 0, 2, Q("37.682119 mm")))
sketch3.addConstraint(Sketcher.Constraint("DistanceY", -1, 1, 0, 2, Q("2.048778 mm")))
pad2 = body.newObject("PartDesign::Pad", "Pad001")
pad2.Profile = sketch3
pad2.Length = 8
pad2.Reversed = True

sketch4 = body.newObject("Sketcher::SketchObject", "Sketch003")
sketch4.AttachmentSupport = (doc.getObject("XY_Plane"), [""])
sketch4.MapMode = "FlatFace"
sketch4.AttachmentOffset = App.Placement(Vector(0, 0, 8), App.Rotation())
sketch4.addGeometry(Part.Circle(Vector(-8.8, -43, 0), Vector(0, 0, 1), 1.7), False)
sketch4.addGeometry(Part.Circle(Vector(14.2, -43, 0), Vector(0, 0, 1), 1.7), False)
sketch4.addConstraint(Sketcher.Constraint("Equal", 0, 1))
sketch4.addConstraint(Sketcher.Constraint("Horizontal", 0, 3, 1, 3))
sketch4.addConstraint(Sketcher.Constraint("Diameter", 0, Q("3.4 mm")))
sketch4.addConstraint(Sketcher.Constraint("DistanceX", 0, 3, 1, 3, Q("23 mm")))
sketch4.addConstraint(Sketcher.Constraint("DistanceX", 0, 3, -1, 1, Q("8.817881 mm")))
sketch4.addConstraint(Sketcher.Constraint("DistanceY", 0, 3, -1, 1, Q("42.951222 mm")))
pocket2 = body.newObject("PartDesign::Pocket", "Pocket001")
pocket2.Profile = sketch4
pocket2.Length = 20

sketch5 = body.newObject("Sketcher::SketchObject", "Sketch004")
sketch5.AttachmentSupport = (doc.getObject("XY_Plane"), [""])
sketch5.MapMode = "FlatFace"
sketch5.AttachmentOffset = App.Placement(Vector(0, 0, 8), App.Rotation())
sketch5.addGeometry(Part.Circle(Vector(-8.8, -43, 0), Vector(0, 0, 1), 3.8), False)
sketch5.addGeometry(Part.Circle(Vector(14.2, -43, 0), Vector(0, 0, 1), 3.8), False)
sketch5.addConstraint(Sketcher.Constraint("Equal", 0, 1))
sketch5.addConstraint(Sketcher.Constraint("Horizontal", 0, 3, 1, 3))
sketch5.addConstraint(Sketcher.Constraint("Diameter", 0, Q("7.5 mm")))
sketch5.addConstraint(Sketcher.Constraint("DistanceX", 0, 3, 1, 3, Q("23 mm")))
sketch5.addConstraint(Sketcher.Constraint("DistanceX", 0, 3, -1, 1, Q("8.817881 mm")))
sketch5.addConstraint(Sketcher.Constraint("DistanceY", 0, 3, -1, 1, Q("42.951222 mm")))
pocket3 = body.newObject("PartDesign::Pocket", "Pocket002")
pocket3.Profile = sketch5
pocket3.Length = 4.5

sketch6 = body.newObject("Sketcher::SketchObject", "Sketch005")
sketch6.AttachmentSupport = (doc.getObject("XY_Plane"), [""])
sketch6.MapMode = "FlatFace"
sketch6.addGeometry(Part.Circle(Vector(14.2, -20, 0), Vector(0, 0, 1), 1.9), False)
sketch6.addGeometry(Part.Circle(Vector(-8.8, -20, 0), Vector(0, 0, 1), 1.7), False)
sketch6.addConstraint(Sketcher.Constraint("Horizontal", 0, 3, 1, 3))
sketch6.addConstraint(Sketcher.Constraint("Diameter", 1, Q("3.4 mm")))
sketch6.addConstraint(Sketcher.Constraint("DistanceX", 1, 3, 0, 3, Q("23 mm")))
sketch6.addConstraint(Sketcher.Constraint("Diameter", 0, Q("3.876403 mm")))
sketch6.addConstraint(Sketcher.Constraint("DistanceX", -1, 1, 0, 3, Q("14.182119 mm")))
sketch6.addConstraint(Sketcher.Constraint("DistanceY", 0, 3, -1, 1, Q("19.951222 mm")))
pocket4 = body.newObject("PartDesign::Pocket", "Pocket003")
pocket4.Profile = sketch6
pocket4.Length = 10
pocket4.Reversed = True

sketch7 = body.newObject("Sketcher::SketchObject", "Sketch006")
sketch7.AttachmentSupport = (doc.getObject("XY_Plane"), [""])
sketch7.MapMode = "FlatFace"
sketch7.AttachmentOffset = App.Placement(Vector(0, 0, 8), App.Rotation())
sketch7.addGeometry(Part.Circle(Vector(-8.8, -20, 0), Vector(0, 0, 1), 3.8), False)
sketch7.addGeometry(Part.Circle(Vector(14.2, -20, 0), Vector(0, 0, 1), 3.8), False)
sketch7.addConstraint(Sketcher.Constraint("Equal", 0, 1))
sketch7.addConstraint(Sketcher.Constraint("Horizontal", 0, 3, 1, 3))
sketch7.addConstraint(Sketcher.Constraint("Diameter", 0, Q("7.5 mm")))
sketch7.addConstraint(Sketcher.Constraint("DistanceX", 0, 3, 1, 3, Q("23 mm")))
sketch7.addConstraint(Sketcher.Constraint("DistanceX", 0, 3, -1, 1, Q("8.817881 mm")))
sketch7.addConstraint(Sketcher.Constraint("DistanceY", 0, 3, -1, 1, Q("19.951222 mm")))
pocket5 = body.newObject("PartDesign::Pocket", "Pocket004")
pocket5.Profile = sketch7
pocket5.Length = 4.5

doc.recompute()
